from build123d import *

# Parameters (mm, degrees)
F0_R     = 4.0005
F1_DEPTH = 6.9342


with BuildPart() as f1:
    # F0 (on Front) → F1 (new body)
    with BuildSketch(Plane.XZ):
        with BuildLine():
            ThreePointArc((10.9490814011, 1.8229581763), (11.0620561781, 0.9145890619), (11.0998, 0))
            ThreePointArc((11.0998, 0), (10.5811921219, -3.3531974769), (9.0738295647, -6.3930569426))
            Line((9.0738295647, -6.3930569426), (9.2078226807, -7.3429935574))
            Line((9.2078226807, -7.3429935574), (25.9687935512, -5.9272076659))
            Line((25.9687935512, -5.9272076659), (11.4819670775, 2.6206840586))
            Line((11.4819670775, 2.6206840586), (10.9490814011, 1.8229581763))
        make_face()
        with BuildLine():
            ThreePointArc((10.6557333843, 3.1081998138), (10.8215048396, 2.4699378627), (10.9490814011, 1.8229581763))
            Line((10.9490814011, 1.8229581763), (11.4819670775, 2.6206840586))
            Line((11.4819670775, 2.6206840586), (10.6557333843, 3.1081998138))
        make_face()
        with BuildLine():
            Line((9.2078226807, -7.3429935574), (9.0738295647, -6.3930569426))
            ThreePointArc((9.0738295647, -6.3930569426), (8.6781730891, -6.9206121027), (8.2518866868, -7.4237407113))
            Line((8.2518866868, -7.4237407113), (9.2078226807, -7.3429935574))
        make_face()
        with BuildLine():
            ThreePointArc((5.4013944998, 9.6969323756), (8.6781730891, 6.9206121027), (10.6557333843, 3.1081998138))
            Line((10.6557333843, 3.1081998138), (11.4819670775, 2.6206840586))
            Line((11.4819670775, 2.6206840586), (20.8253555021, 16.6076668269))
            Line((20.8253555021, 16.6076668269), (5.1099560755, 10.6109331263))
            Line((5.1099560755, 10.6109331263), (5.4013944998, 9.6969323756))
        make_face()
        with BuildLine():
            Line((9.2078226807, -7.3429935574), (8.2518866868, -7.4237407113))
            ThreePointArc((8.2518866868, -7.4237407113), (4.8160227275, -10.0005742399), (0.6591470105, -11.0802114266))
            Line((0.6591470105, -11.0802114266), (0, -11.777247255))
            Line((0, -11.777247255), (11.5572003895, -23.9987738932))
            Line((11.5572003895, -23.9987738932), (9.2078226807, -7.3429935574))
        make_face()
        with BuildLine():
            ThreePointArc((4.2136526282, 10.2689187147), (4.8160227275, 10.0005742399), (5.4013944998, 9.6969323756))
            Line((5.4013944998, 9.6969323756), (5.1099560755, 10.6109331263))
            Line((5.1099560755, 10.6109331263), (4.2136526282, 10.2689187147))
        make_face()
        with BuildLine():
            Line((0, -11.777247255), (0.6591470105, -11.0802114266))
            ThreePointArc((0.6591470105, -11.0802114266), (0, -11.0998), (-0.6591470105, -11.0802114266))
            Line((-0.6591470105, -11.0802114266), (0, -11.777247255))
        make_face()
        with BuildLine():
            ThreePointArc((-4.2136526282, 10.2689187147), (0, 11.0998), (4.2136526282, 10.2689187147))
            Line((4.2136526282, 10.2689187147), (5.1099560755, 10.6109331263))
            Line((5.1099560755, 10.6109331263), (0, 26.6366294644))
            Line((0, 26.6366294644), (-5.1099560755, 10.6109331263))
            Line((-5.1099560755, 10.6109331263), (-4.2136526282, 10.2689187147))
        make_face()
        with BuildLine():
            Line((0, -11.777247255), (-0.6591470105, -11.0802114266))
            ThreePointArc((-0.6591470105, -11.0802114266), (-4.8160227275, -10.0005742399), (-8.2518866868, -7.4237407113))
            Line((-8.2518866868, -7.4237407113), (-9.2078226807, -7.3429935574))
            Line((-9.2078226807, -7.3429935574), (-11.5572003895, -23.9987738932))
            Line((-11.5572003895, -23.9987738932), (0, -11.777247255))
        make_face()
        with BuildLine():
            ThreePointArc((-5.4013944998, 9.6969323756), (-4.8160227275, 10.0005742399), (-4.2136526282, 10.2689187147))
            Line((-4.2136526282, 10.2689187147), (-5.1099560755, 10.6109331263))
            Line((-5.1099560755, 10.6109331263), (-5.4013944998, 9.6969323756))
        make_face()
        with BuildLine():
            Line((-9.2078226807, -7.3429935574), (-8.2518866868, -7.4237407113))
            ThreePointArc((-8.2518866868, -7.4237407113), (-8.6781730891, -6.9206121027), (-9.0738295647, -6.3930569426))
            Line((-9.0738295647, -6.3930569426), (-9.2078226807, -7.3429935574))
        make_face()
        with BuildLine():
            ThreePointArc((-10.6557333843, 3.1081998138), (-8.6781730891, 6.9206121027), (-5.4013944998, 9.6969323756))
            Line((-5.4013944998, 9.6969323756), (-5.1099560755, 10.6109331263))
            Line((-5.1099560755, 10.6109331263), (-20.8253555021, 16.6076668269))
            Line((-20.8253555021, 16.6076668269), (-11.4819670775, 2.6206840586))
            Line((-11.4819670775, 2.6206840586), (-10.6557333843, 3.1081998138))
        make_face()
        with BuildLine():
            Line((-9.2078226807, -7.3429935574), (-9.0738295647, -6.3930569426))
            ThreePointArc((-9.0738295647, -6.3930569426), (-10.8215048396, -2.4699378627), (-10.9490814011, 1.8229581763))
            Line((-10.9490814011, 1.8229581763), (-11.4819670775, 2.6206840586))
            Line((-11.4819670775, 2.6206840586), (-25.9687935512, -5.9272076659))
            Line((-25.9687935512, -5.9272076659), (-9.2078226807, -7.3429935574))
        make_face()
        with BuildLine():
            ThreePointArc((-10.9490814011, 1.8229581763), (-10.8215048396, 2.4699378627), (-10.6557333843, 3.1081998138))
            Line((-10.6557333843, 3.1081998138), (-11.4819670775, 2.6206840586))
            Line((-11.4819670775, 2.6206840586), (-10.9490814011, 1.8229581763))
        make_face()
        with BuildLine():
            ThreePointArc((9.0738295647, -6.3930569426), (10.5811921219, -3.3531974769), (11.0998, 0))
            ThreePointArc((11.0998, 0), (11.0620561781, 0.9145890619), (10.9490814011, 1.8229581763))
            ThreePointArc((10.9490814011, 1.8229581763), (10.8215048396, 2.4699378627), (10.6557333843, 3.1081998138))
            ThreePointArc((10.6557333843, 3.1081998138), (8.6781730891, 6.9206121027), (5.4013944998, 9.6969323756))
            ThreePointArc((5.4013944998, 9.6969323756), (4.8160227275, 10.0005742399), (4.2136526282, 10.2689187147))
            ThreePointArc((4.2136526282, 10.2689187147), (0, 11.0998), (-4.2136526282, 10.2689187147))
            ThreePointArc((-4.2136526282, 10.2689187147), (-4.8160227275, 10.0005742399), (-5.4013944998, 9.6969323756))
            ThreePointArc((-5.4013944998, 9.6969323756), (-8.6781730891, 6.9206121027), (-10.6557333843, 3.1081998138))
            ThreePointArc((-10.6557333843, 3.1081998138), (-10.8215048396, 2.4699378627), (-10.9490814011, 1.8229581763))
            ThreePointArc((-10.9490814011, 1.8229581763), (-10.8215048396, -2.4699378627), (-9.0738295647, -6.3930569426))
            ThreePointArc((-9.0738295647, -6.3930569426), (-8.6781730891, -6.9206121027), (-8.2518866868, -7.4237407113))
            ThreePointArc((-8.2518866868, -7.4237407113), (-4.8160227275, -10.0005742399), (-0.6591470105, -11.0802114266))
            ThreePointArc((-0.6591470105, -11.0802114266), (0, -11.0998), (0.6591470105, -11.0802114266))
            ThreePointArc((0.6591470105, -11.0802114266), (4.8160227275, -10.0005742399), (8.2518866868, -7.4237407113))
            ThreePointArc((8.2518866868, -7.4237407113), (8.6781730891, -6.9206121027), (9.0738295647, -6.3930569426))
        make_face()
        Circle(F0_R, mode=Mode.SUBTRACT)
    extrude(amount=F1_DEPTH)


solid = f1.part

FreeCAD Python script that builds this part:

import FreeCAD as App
import Part
import Sketcher
from FreeCAD import Vector
Q = App.Units.Quantity


def add_polygon(sketch, points):
    """Adds a closed chain of lines whose ends are joined by coincident constraints."""
    first, n = sketch.GeometryCount, len(points)
    for a, b in zip(points, points[1:] + points[:1]):
        sketch.addGeometry(Part.LineSegment(App.Vector(*a, 0), App.Vector(*b, 0)), False)
    for i in range(n):
        sketch.addConstraint(Sketcher.Constraint("Coincident", first + i, 2, first + (i + 1) % n, 1))

doc = App.newDocument("Part")
body = doc.addObject("PartDesign::Body", "Body")

# Sketch on XZ plane
sketch1 = body.newObject("Sketcher::SketchObject", "Sketch")
sketch1.AttachmentSupport = (doc.getObject("XZ_Plane"), [""])
sketch1.MapMode = "FlatFace"
add_polygon(sketch1, [(-20.8, 16.6), (-11.5, 2.6), (-26, -5.9), (-9.2, -7.3), (-11.6, -24), (0, -11.8), (11.6, -24), (9.2, -7.3), (26, -5.9), (11.5, 2.6), (20.8, 16.6), (5.1, 10.6), (0, 26.6), (-5.1, 10.6)])  # lines 0-13
sketch1.addGeometry(Part.Circle(Vector(0, 0, 0), Vector(0, 0, 1), 4), False)  # 14
sketch1.addConstraint([
    Sketcher.Constraint("Coincident", 14, 3, -1, 1),
    Sketcher.Constraint("Symmetric", 3, 2, 5, 2, -2),
    Sketcher.Constraint("Symmetric", 2, 2, 6, 2, -2),
    Sketcher.Constraint("Symmetric", 1, 2, 7, 2, -2),
    Sketcher.Constraint("Symmetric", 0, 2, 8, 2, -2),
    Sketcher.Constraint("Symmetric", 10, 2, 12, 2, -2),
    Sketcher.Constraint("Symmetric", 9, 2, 13, 2, -2),
    Sketcher.Constraint("PointOnObject", 4, 2, -2),
    Sketcher.Constraint("PointOnObject", 11, 2, -2),
    Sketcher.Constraint("Equal", 0, 1),
    Sketcher.Constraint("Equal", 1, 2),
    Sketcher.Constraint("Equal", 2, 3),
    Sketcher.Constraint("Equal", 3, 4),
    Sketcher.Constraint("Equal", 9, 10),
    Sketcher.Constraint("Equal", 10, 11),
    Sketcher.Constraint("Diameter", 14, Q("0.315 in")),
    Sketcher.Constraint("DistanceX", 3, 2, -1, 1, Q("11.5572 mm")),
    Sketcher.Constraint("DistanceX", 10, 2, 9, 2, Q("15.715399 mm")),
    Sketcher.Constraint("Distance", 0, Q("16.82066 mm")),
    Sketcher.Constraint("DistanceY", -1, 1, 11, 2, Q("26.636629 mm")),
    Sketcher.Constraint("DistanceY", 1, 2, 0, 2, Q("8.547892 mm")),
    Sketcher.Constraint("DistanceX", 1, 2, 2, 2, Q("16.760971 mm")),
    Sketcher.Constraint("DistanceY", 3, 2, 2, 2, Q("16.65578 mm")),
    Sketcher.Constraint("DistanceX", 8, 2, 9, 2, Q("9.343388 mm")),
])
pad1 = body.newObject("PartDesign::Pad", "Pad")
pad1.Profile = sketch1
pad1.Length = Q("0.273 in")

doc.recompute()
